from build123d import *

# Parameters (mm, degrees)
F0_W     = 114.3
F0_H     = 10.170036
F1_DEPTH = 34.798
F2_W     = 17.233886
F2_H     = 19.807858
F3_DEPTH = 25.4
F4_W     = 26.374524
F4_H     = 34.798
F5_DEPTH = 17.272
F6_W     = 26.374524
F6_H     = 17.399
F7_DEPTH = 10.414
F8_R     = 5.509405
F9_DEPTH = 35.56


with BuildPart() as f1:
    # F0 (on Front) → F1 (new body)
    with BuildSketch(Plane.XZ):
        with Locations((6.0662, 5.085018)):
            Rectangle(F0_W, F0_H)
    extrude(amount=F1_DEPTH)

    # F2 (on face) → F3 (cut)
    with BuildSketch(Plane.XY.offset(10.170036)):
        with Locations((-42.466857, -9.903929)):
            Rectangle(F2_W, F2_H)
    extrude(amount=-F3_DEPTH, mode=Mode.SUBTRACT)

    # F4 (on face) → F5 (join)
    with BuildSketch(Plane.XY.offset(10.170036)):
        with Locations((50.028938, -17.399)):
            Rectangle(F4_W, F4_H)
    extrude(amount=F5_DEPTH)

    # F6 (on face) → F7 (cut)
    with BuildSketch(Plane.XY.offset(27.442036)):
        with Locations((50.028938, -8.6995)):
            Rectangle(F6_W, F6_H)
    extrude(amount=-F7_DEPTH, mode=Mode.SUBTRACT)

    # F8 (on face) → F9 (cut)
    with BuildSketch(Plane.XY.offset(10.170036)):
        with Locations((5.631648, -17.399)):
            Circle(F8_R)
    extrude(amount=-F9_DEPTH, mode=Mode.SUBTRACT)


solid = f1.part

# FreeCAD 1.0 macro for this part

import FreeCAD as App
import Part
import Sketcher
from FreeCAD import Vector
Q = App.Units.Quantity

doc = App.newDocument("Part")
body = doc.addObject("PartDesign::Body", "Body")

# Sketch on XZ plane
sketch1 = body.newObject("Sketcher::SketchObject", "Sketch")
sketch1.AttachmentSupport = (doc.getObject("XZ_Plane"), [""])
sketch1.MapMode = "FlatFace"
sketch1.addGeometry([
    Part.LineSegment(Vector(-51.0838, 10.170036, 0), Vector(-51.0838, 0, 0)),
    Part.LineSegment(Vector(-51.0838, 0, 0), Vector(63.2162, 0, 0)),
    Part.LineSegment(Vector(63.2162, 0, 0), Vector(63.2162, 10.170036, 0)),
    Part.LineSegment(Vector(63.2162, 10.170036, 0), Vector(-51.0838, 10.170036, 0)),
], False)
sketch1.addConstraint([
    Sketcher.Constraint("Coincident", 0, 2, 1, 1),
    Sketcher.Constraint("Coincident", 1, 2, 2, 1),
    Sketcher.Constraint("Coincident", 2, 2, 3, 1),
    Sketcher.Constraint("Coincident", 3, 2, 0, 1),
    Sketcher.Constraint("Vertical", 0),
    Sketcher.Constraint("Horizontal", 1),
    Sketcher.Constraint("Vertical", 2),
    Sketcher.Constraint("Horizontal", 3),
    Sketcher.Constraint("PointOnObject", 0, 2, -1),
    Sketcher.Constraint("DistanceX", 1, 1, 1, 2, Q("4.5 in")),
    Sketcher.Constraint("DistanceX", 0, 2, -1, 1, Q("51.0838 mm")),
    Sketcher.Constraint("DistanceY", 0, 2, 0, 1, Q("10.170036 mm")),
])
pad1 = body.newObject("PartDesign::Pad", "Pad")
pad1.Profile = sketch1
pad1.Length = Q("1.37 in")

# Sketch on XY plane
sketch2 = body.newObject("Sketcher::SketchObject", "Sketch001")
sketch2.AttachmentSupport = (doc.getObject("XY_Plane"), [""])
sketch2.MapMode = "FlatFace"
sketch2.AttachmentOffset = App.Placement(Vector(0, 0, 10.170036), App.Rotation())
sketch2.addGeometry([
    Part.LineSegment(Vector(-51.0838, 0, 0), Vector(-51.0838, -19.807858, 0)),
    Part.LineSegment(Vector(-51.0838, -19.807858, 0), Vector(-33.849914, -19.807858, 0)),
    Part.LineSegment(Vector(-33.849914, -19.807858, 0), Vector(-33.849914, 0, 0)),
    Part.LineSegment(Vector(-33.849914, 0, 0), Vector(-51.0838, 0, 0)),
], False)
sketch2.addConstraint([
    Sketcher.Constraint("Coincident", 0, 2, 1, 1),
    Sketcher.Constraint("Coincident", 1, 2, 2, 1),
    Sketcher.Constraint("Coincident", 2, 2, 3, 1),
    Sketcher.Constraint("Coincident", 3, 2, 0, 1),
    Sketcher.Constraint("Vertical", 0),
    Sketcher.Constraint("Horizontal", 1),
    Sketcher.Constraint("Vertical", 2),
    Sketcher.Constraint("Horizontal", 3),
    Sketcher.Constraint("PointOnObject", 2, 2, -1),
    Sketcher.Constraint("DistanceX", 0, 2, -1, 1, Q("51.0838 mm")),
    Sketcher.Constraint("DistanceX", 1, 1, 1, 2, Q("17.233886 mm")),
    Sketcher.Constraint("DistanceY", 0, 2, 0, 1, Q("19.807858 mm")),
])
pocket1 = body.newObject("PartDesign::Pocket", "Pocket")
pocket1.Profile = sketch2
pocket1.Length = Q("1 in")

# Sketch on XY plane
sketch3 = body.newObject("Sketcher::SketchObject", "Sketch002")
sketch3.AttachmentSupport = (doc.getObject("XY_Plane"), [""])
sketch3.MapMode = "FlatFace"
sketch3.AttachmentOffset = App.Placement(Vector(0, 0, 10.170036), App.Rotation())
sketch3.addGeometry([
    Part.LineSegment(Vector(36.841676, 0, 0), Vector(36.841676, -34.798, 0)),
    Part.LineSegment(Vector(36.841676, -34.798, 0), Vector(63.2162, -34.798, 0)),
    Part.LineSegment(Vector(63.2162, -34.798, 0), Vector(63.2162, 0, 0)),
    Part.LineSegment(Vector(63.2162, 0, 0), Vector(36.841676, 0, 0)),
], False)
sketch3.addConstraint([
    Sketcher.Constraint("Coincident", 0, 2, 1, 1),
    Sketcher.Constraint("Coincident", 1, 2, 2, 1),
    Sketcher.Constraint("Coincident", 2, 2, 3, 1),
    Sketcher.Constraint("Coincident", 3, 2, 0, 1),
    Sketcher.Constraint("Vertical", 0),
    Sketcher.Constraint("Horizontal", 1),
    Sketcher.Constraint("Vertical", 2),
    Sketcher.Constraint("Horizontal", 3),
    Sketcher.Constraint("PointOnObject", 2, 2, -1),
    Sketcher.Constraint("DistanceY", 0, 2, 0, 1, Q("1.37 in")),
    Sketcher.Constraint("DistanceX", -1, 1, 1, 2, Q("63.2162 mm")),
    Sketcher.Constraint("DistanceX", 1, 1, 1, 2, Q("26.374524 mm")),
])
pad2 = body.newObject("PartDesign::Pad", "Pad001")
pad2.Profile = sketch3
pad2.Length = Q("0.68 in")

# Sketch on XY plane
sketch4 = body.newObject("Sketcher::SketchObject", "Sketch003")
sketch4.AttachmentSupport = (doc.getObject("XY_Plane"), [""])
sketch4.MapMode = "FlatFace"
sketch4.AttachmentOffset = App.Placement(Vector(0, 0, 27.442036), App.Rotation())
sketch4.addGeometry([
    Part.LineSegment(Vector(36.841676, 0, 0), Vector(36.841676, -17.399, 0)),
    Part.LineSegment(Vector(36.841676, -17.399, 0), Vector(63.2162, -17.399, 0)),
    Part.LineSegment(Vector(63.2162, -17.399, 0), Vector(63.2162, 0, 0)),
    Part.LineSegment(Vector(63.2162, 0, 0), Vector(36.841676, 0, 0)),
], False)
sketch4.addConstraint([
    Sketcher.Constraint("Coincident", 0, 2, 1, 1),
    Sketcher.Constraint("Coincident", 1, 2, 2, 1),
    Sketcher.Constraint("Coincident", 2, 2, 3, 1),
    Sketcher.Constraint("Coincident", 3, 2, 0, 1),
    Sketcher.Constraint("Vertical", 0),
    Sketcher.Constraint("Horizontal", 1),
    Sketcher.Constraint("Vertical", 2),
    Sketcher.Constraint("Horizontal", 3),
    Sketcher.Constraint("PointOnObject", 2, 2, -1),
    Sketcher.Constraint("DistanceY", 0, 2, 0, 1, Q("0.685 in")),
    Sketcher.Constraint("DistanceX", -1, 1, 1, 2, Q("63.2162 mm")),
    Sketcher.Constraint("DistanceX", 1, 1, 1, 2, Q("26.374524 mm")),
])
pocket2 = body.newObject("PartDesign::Pocket", "Pocket001")
pocket2.Profile = sketch4
pocket2.Length = Q("0.41 in")

# Sketch on XY plane
sketch5 = body.newObject("Sketcher::SketchObject", "Sketch004")
sketch5.AttachmentSupport = (doc.getObject("XY_Plane"), [""])
sketch5.MapMode = "FlatFace"
sketch5.AttachmentOffset = App.Placement(Vector(0, 0, 10.170036), App.Rotation())
sketch5.addGeometry(Part.Circle(Vector(5.631648, -17.399, 0), Vector(0, 0, 1), 5.509405), False)
sketch5.addConstraint([
    Sketcher.Constraint("Diameter", 0, Q("11.01881 mm")),
    Sketcher.Constraint("DistanceY", 0, 3, -1, 1, Q("0.685 in")),
    Sketcher.Constraint("DistanceX", -1, 1, 0, 3, Q("5.631648 mm")),
])
pocket3 = body.newObject("PartDesign::Pocket", "Pocket002")
pocket3.Profile = sketch5
pocket3.Length = Q("1.4 in")

doc.recompute()
